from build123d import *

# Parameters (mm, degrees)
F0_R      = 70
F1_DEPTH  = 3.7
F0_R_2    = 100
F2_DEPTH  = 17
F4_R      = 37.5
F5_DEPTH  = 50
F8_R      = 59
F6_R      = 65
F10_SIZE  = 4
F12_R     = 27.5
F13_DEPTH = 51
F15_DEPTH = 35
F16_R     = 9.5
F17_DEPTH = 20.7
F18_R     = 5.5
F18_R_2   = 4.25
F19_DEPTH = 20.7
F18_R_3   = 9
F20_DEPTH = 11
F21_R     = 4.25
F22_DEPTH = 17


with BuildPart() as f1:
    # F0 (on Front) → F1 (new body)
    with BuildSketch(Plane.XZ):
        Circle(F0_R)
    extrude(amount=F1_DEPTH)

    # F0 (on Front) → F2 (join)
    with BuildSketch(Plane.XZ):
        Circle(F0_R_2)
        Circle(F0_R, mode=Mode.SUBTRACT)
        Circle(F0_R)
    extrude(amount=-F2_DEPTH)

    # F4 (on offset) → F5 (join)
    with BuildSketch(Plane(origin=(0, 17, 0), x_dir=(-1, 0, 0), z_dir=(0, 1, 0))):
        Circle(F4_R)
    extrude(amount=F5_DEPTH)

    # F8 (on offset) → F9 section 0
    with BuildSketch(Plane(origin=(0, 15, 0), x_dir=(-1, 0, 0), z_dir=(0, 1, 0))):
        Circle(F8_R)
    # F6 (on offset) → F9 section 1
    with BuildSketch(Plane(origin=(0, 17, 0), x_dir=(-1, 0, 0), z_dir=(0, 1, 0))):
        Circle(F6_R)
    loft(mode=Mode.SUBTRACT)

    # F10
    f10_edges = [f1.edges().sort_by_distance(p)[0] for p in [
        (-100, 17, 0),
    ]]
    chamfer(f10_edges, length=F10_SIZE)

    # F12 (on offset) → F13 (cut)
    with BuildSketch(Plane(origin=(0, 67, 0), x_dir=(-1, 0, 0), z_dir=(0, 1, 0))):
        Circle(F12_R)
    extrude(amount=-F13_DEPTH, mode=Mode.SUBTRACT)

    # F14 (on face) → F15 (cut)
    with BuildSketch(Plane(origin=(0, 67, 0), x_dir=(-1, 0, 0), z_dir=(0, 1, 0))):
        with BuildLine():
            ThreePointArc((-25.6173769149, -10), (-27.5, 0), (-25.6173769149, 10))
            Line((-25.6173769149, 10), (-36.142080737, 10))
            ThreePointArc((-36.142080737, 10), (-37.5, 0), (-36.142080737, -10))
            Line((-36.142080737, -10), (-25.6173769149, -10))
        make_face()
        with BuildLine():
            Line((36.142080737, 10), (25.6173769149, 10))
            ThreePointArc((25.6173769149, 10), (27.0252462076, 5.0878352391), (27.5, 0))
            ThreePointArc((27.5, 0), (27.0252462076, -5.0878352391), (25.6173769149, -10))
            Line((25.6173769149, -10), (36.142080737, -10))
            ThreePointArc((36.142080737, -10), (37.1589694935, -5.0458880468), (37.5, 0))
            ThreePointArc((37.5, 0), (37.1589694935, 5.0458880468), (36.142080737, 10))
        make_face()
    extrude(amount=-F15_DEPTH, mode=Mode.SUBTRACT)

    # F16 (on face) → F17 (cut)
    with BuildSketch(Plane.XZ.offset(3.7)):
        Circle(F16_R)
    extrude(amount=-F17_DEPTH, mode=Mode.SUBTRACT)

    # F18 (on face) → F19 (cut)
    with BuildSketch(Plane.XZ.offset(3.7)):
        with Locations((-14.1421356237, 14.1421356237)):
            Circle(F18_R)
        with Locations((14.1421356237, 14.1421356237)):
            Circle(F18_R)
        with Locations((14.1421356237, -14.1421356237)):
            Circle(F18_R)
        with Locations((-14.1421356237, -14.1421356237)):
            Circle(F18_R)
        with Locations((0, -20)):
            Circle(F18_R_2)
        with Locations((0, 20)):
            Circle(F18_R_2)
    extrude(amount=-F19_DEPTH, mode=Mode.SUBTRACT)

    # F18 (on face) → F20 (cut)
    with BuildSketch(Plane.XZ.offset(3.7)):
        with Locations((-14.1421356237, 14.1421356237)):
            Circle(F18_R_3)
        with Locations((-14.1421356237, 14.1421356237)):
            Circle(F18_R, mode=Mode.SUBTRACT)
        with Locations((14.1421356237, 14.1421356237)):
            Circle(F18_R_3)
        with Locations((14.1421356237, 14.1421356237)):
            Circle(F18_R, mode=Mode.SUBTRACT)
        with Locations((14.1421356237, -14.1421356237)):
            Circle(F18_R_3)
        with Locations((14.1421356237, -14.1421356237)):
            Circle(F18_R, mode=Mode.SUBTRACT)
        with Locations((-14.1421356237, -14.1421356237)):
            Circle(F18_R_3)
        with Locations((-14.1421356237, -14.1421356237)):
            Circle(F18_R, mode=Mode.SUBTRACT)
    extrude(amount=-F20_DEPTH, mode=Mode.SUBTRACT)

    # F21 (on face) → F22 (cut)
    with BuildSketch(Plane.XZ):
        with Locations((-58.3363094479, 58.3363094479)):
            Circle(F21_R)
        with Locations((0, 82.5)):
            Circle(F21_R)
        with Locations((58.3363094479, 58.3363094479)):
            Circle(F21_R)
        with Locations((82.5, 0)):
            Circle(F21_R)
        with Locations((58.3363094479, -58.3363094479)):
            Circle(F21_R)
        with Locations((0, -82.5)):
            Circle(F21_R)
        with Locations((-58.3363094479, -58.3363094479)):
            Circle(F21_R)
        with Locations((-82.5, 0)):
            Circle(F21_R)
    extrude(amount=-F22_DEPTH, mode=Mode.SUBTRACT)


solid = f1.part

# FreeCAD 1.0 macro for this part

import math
import FreeCAD as App
import Part
import Sketcher
Q = App.Units.Quantity


def edges_at(feature, points):
    """Names of the edges that pass closest to the given points."""
    edges = feature.Shape.Edges
    near = lambda p: min(range(len(edges)), key=lambda i: edges[i].distToShape(Part.Vertex(*p))[0])
    return sorted({f"Edge{near(p) + 1}" for p in points})

doc = App.newDocument("Part")
body = doc.addObject("PartDesign::Body", "Body")
body.AllowCompound = True

# Sketch on XZ plane
sketch1 = body.newObject("Sketcher::SketchObject", "Sketch")
sketch1.AttachmentSupport = (doc.getObject("XZ_Plane"), [""])
sketch1.MapMode = "FlatFace"
sketch1.addGeometry(Part.Circle(App.Vector(0, 0, 0), App.Vector(0, 0, 1), 70), False)
sketch1.addConstraint([
    Sketcher.Constraint("Coincident", 0, 3, -1, 1),
    Sketcher.Constraint("Diameter", 0, Q("140 mm")),
])
pad1 = body.newObject("PartDesign::Pad", "Pad")
pad1.Profile = sketch1
pad1.Length = 3.7

# Sketch on XZ plane
sketch2 = body.newObject("Sketcher::SketchObject", "Sketch001")
sketch2.AttachmentSupport = (doc.getObject("XZ_Plane"), [""])
sketch2.MapMode = "FlatFace"
sketch2.addGeometry(Part.Circle(App.Vector(0, 0, 0), App.Vector(0, 0, 1), 100), False)
sketch2.addConstraint([
    Sketcher.Constraint("Coincident", 0, 3, -1, 1),
    Sketcher.Constraint("Diameter", 0, Q("200 mm")),
])
pad2 = body.newObject("PartDesign::Pad", "Pad001")
pad2.Profile = sketch2
pad2.Length = 17
pad2.Reversed = True

# Sketch on XZ plane
sketch3 = body.newObject("Sketcher::SketchObject", "Sketch002")
sketch3.AttachmentSupport = (doc.getObject("XZ_Plane"), [""])
sketch3.MapMode = "FlatFace"
sketch3.AttachmentOffset = App.Placement(App.Vector(0, 0, -17), App.Rotation())
sketch3.addGeometry(Part.Circle(App.Vector(0, 0, 0), App.Vector(0, 0, 1), 37.5), False)
sketch3.addConstraint([
    Sketcher.Constraint("Coincident", 0, 3, -1, 1),
    Sketcher.Constraint("Diameter", 0, Q("75 mm")),
])
pad3 = body.newObject("PartDesign::Pad", "Pad002")
pad3.Profile = sketch3
pad3.Length = 50
pad3.Reversed = True

# Sketch on XZ plane
sketch4 = body.newObject("Sketcher::SketchObject", "Sketch003")
sketch4.AttachmentSupport = (doc.getObject("XZ_Plane"), [""])
sketch4.MapMode = "FlatFace"
sketch4.AttachmentOffset = App.Placement(App.Vector(0, 0, -15), App.Rotation())
sketch4.addGeometry(Part.Circle(App.Vector(0, 0, 0), App.Vector(0, 0, 1), 59), False)
sketch4.addConstraint([
    Sketcher.Constraint("Coincident", 0, 3, -1, 1),
    Sketcher.Constraint("Diameter", 0, Q("118 mm")),
])

# Sketch on XZ plane
sketch5 = body.newObject("Sketcher::SketchObject", "Sketch004")
sketch5.AttachmentSupport = (doc.getObject("XZ_Plane"), [""])
sketch5.MapMode = "FlatFace"
sketch5.AttachmentOffset = App.Placement(App.Vector(0, 0, -17), App.Rotation())
sketch5.addGeometry(Part.Circle(App.Vector(0, 0, 0), App.Vector(0, 0, 1), 65), False)
sketch5.addConstraint([
    Sketcher.Constraint("Coincident", 0, 3, -1, 1),
    Sketcher.Constraint("Diameter", 0, Q("130 mm")),
])

subtractiveloft = body.newObject("PartDesign::SubtractiveLoft", "SubtractiveLoft")
subtractiveloft.Profile = sketch4
subtractiveloft.Sections = [sketch5]
doc.recompute()

chamfer = body.newObject("PartDesign::Chamfer", "Chamfer")
chamfer.Base = (subtractiveloft, edges_at(subtractiveloft, [(-100, 17, 0)]))
chamfer.Size = 4

# Sketch on XZ plane
sketch6 = body.newObject("Sketcher::SketchObject", "Sketch005")
sketch6.AttachmentSupport = (doc.getObject("XZ_Plane"), [""])
sketch6.MapMode = "FlatFace"
sketch6.AttachmentOffset = App.Placement(App.Vector(0, 0, -67), App.Rotation())
sketch6.addGeometry(Part.Circle(App.Vector(0, 0, 0), App.Vector(0, 0, 1), 27.5), False)
sketch6.addConstraint([
    Sketcher.Constraint("Coincident", 0, 3, -1, 1),
    Sketcher.Constraint("Diameter", 0, Q("55 mm")),
])
pocket1 = body.newObject("PartDesign::Pocket", "Pocket")
pocket1.Profile = sketch6
pocket1.Length = 51
pocket1.Reversed = True

# Sketch on XZ plane
sketch7 = body.newObject("Sketcher::SketchObject", "Sketch006")
sketch7.AttachmentSupport = (doc.getObject("XZ_Plane"), [""])
sketch7.MapMode = "FlatFace"
sketch7.AttachmentOffset = App.Placement(App.Vector(0, 0, -67), App.Rotation())
sketch7.addGeometry([
    Part.ArcOfCircle(Part.Circle(App.Vector(0, 0, 0), App.Vector(0, 0, 1), 27.5), math.radians(-21.323686), math.radians(21.323686)),  # 0
    Part.LineSegment(App.Vector(25.617377, 10, 0), App.Vector(36.142081, 10, 0)),  # 1
    Part.ArcOfCircle(Part.Circle(App.Vector(0, 0, 0), App.Vector(0, 0, 1), 37.5), math.radians(-15.46601), math.radians(15.46601)),  # 2
    Part.LineSegment(App.Vector(36.142081, -10, 0), App.Vector(25.617377, -10, 0)),  # 3
    Part.LineSegment(App.Vector(-36.142081, 10, 0), App.Vector(-25.617377, 10, 0)),  # 4
    Part.ArcOfCircle(Part.Circle(App.Vector(0, 0, 0), App.Vector(0, 0, 1), 27.5), math.radians(158.676314), math.radians(180)),  # 5
    Part.ArcOfCircle(Part.Circle(App.Vector(0, 0, 0), App.Vector(0, 0, 1), 27.5), math.radians(180), math.radians(201.323686)),  # 6
    Part.LineSegment(App.Vector(-25.617377, -10, 0), App.Vector(-36.142081, -10, 0)),  # 7
    Part.ArcOfCircle(Part.Circle(App.Vector(0, 0, 0), App.Vector(0, 0, 1), 37.5), math.radians(180), math.radians(195.46601)),  # 8
    Part.ArcOfCircle(Part.Circle(App.Vector(0, 0, 0), App.Vector(0, 0, 1), 37.5), math.radians(164.53399), math.radians(180)),  # 9
], False)
sketch7.addConstraint([
    Sketcher.Constraint("Coincident", 0, 2, 1, 1),
    Sketcher.Constraint("Coincident", 1, 2, 2, 2),
    Sketcher.Constraint("Coincident", 2, 1, 3, 1),
    Sketcher.Constraint("Coincident", 3, 2, 0, 1),
    Sketcher.Constraint("Coincident", 4, 2, 5, 1),
    Sketcher.Constraint("Tangent", 5, 2, 6, 1),
    Sketcher.Constraint("Coincident", 6, 2, 7, 1),
    Sketcher.Constraint("Coincident", 7, 2, 8, 2),
    Sketcher.Constraint("Tangent", 8, 1, 9, 2),
    Sketcher.Constraint("Coincident", 9, 1, 4, 1),
    Sketcher.Constraint("Horizontal", 1),
    Sketcher.Constraint("Horizontal", 3),
    Sketcher.Constraint("Horizontal", 4),
    Sketcher.Constraint("Horizontal", 7),
    Sketcher.Constraint("Coincident", 0, 3, -1, 1),
    Sketcher.Constraint("Coincident", 2, 3, -1, 1),
    Sketcher.Constraint("Coincident", 5, 3, -1, 1),
    Sketcher.Constraint("Coincident", 8, 3, -1, 1),
    Sketcher.Constraint("Equal", 0, 5),
    Sketcher.Constraint("Equal", 5, 6),
    Sketcher.Constraint("Equal", 2, 8),
    Sketcher.Constraint("Equal", 8, 9),
    Sketcher.Constraint("PointOnObject", 5, 2, -1),
    Sketcher.Constraint("PointOnObject", 8, 1, -1),
    Sketcher.Constraint("Horizontal", 1, 2, 4, 2),
    Sketcher.Constraint("Horizontal", 3, 2, 6, 2),
    Sketcher.Constraint("Vertical", 1, 2, 2, 1),
    Sketcher.Constraint("Radius", 0, Q("27.5 mm")),
    Sketcher.Constraint("Radius", 2, Q("37.5 mm")),
    Sketcher.Constraint("DistanceY", -1, 1, 0, 2, Q("10 mm")),
])
pocket2 = body.newObject("PartDesign::Pocket", "Pocket001")
pocket2.Profile = sketch7
pocket2.Length = 35
pocket2.Reversed = True

# Sketch on XZ plane
sketch8 = body.newObject("Sketcher::SketchObject", "Sketch007")
sketch8.AttachmentSupport = (doc.getObject("XZ_Plane"), [""])
sketch8.MapMode = "FlatFace"
sketch8.AttachmentOffset = App.Placement(App.Vector(0, 0, 3.7), App.Rotation())
sketch8.addGeometry(Part.Circle(App.Vector(0, 0, 0), App.Vector(0, 0, 1), 9.5), False)
sketch8.addConstraint([
    Sketcher.Constraint("Coincident", 0, 3, -1, 1),
    Sketcher.Constraint("Diameter", 0, Q("19 mm")),
])
pocket3 = body.newObject("PartDesign::Pocket", "Pocket002")
pocket3.Profile = sketch8
pocket3.Length = 20.7

# Sketch on XZ plane
sketch9 = body.newObject("Sketcher::SketchObject", "Sketch008")
sketch9.AttachmentSupport = (doc.getObject("XZ_Plane"), [""])
sketch9.MapMode = "FlatFace"
sketch9.AttachmentOffset = App.Placement(App.Vector(0, 0, 3.7), App.Rotation())
sketch9.addGeometry([
    Part.Circle(App.Vector(-14.142136, 14.142136, 0), App.Vector(0, 0, 1), 5.5),  # 0
    Part.Circle(App.Vector(14.142136, 14.142136, 0), App.Vector(0, 0, 1), 5.5),  # 1
    Part.Circle(App.Vector(14.142136, -14.142136, 0), App.Vector(0, 0, 1), 5.5),  # 2
    Part.Circle(App.Vector(-14.142136, -14.142136, 0), App.Vector(0, 0, 1), 5.5),  # 3
    Part.Circle(App.Vector(0, -20, 0), App.Vector(0, 0, 1), 4.25),  # 4
    Part.Circle(App.Vector(0, 20, 0), App.Vector(0, 0, 1), 4.25),  # 5
], False)
sketch9.addConstraint([
    Sketcher.Constraint("Equal", 0, 1),
    Sketcher.Constraint("Equal", 1, 2),
    Sketcher.Constraint("Equal", 2, 3),
    Sketcher.Constraint("Equal", 4, 5),
    Sketcher.Constraint("Symmetric", 0, 3, 2, 3, -1, 1),
    Sketcher.Constraint("Symmetric", 1, 3, 3, 3, -1, 1),
    Sketcher.Constraint("Symmetric", 4, 3, 5, 3, -1, 1),
    Sketcher.Constraint("Symmetric", 0, 3, 1, 3, -2),
    Sketcher.Constraint("PointOnObject", 4, 3, -2),
    Sketcher.Constraint("Diameter", 0, Q("11 mm")),
    Sketcher.Constraint("Diameter", 4, Q("8.5 mm")),
    Sketcher.Constraint("DistanceY", 4, 3, -1, 1, Q("20 mm")),
    Sketcher.Constraint("DistanceX", 0, 3, 1, 3, Q("28.284271 mm")),
    Sketcher.Constraint("DistanceY", 2, 3, 1, 3, Q("28.284271 mm")),
])
pocket4 = body.newObject("PartDesign::Pocket", "Pocket003")
pocket4.Profile = sketch9
pocket4.Length = 20.7

# Sketch on XZ plane
sketch10 = body.newObject("Sketcher::SketchObject", "Sketch009")
sketch10.AttachmentSupport = (doc.getObject("XZ_Plane"), [""])
sketch10.MapMode = "FlatFace"
sketch10.AttachmentOffset = App.Placement(App.Vector(0, 0, 3.7), App.Rotation())
sketch10.addGeometry([
    Part.Circle(App.Vector(-14.142136, 14.142136, 0), App.Vector(0, 0, 1), 9),  # 0
    Part.Circle(App.Vector(-14.142136, 14.142136, 0), App.Vector(0, 0, 1), 5.5),  # 1
    Part.Circle(App.Vector(14.142136, 14.142136, 0), App.Vector(0, 0, 1), 9),  # 2
    Part.Circle(App.Vector(14.142136, 14.142136, 0), App.Vector(0, 0, 1), 5.5),  # 3
    Part.Circle(App.Vector(14.142136, -14.142136, 0), App.Vector(0, 0, 1), 9),  # 4
    Part.Circle(App.Vector(14.142136, -14.142136, 0), App.Vector(0, 0, 1), 5.5),  # 5
    Part.Circle(App.Vector(-14.142136, -14.142136, 0), App.Vector(0, 0, 1), 9),  # 6
    Part.Circle(App.Vector(-14.142136, -14.142136, 0), App.Vector(0, 0, 1), 5.5),  # 7
], False)
sketch10.addConstraint([
    Sketcher.Constraint("Coincident", 1, 3, 0, 3),
    Sketcher.Constraint("Coincident", 3, 3, 2, 3),
    Sketcher.Constraint("Coincident", 5, 3, 4, 3),
    Sketcher.Constraint("Coincident", 7, 3, 6, 3),
    Sketcher.Constraint("Equal", 0, 2),
    Sketcher.Constraint("Equal", 1, 3),
    Sketcher.Constraint("Equal", 2, 4),
    Sketcher.Constraint("Equal", 3, 5),
    Sketcher.Constraint("Equal", 4, 6),
    Sketcher.Constraint("Equal", 5, 7),
    Sketcher.Constraint("Symmetric", 0, 3, 4, 3, -1, 1),
    Sketcher.Constraint("Symmetric", 2, 3, 6, 3, -1, 1),
    Sketcher.Constraint("Symmetric", 0, 3, 2, 3, -2),
    Sketcher.Constraint("Diameter", 0, Q("18 mm")),
    Sketcher.Constraint("Diameter", 1, Q("11 mm")),
    Sketcher.Constraint("DistanceX", 0, 3, 2, 3, Q("28.284271 mm")),
    Sketcher.Constraint("DistanceY", 4, 3, 2, 3, Q("28.284271 mm")),
])
pocket5 = body.newObject("PartDesign::Pocket", "Pocket004")
pocket5.Profile = sketch10
pocket5.Length = 11

# Sketch on XZ plane
sketch11 = body.newObject("Sketcher::SketchObject", "Sketch010")
sketch11.AttachmentSupport = (doc.getObject("XZ_Plane"), [""])
sketch11.MapMode = "FlatFace"
sketch11.addGeometry([
    Part.Circle(App.Vector(-58.336309, 58.336309, 0), App.Vector(0, 0, 1), 4.25),  # 0
    Part.Circle(App.Vector(0, 82.5, 0), App.Vector(0, 0, 1), 4.25),  # 1
    Part.Circle(App.Vector(58.336309, 58.336309, 0), App.Vector(0, 0, 1), 4.25),  # 2
    Part.Circle(App.Vector(82.5, 0, 0), App.Vector(0, 0, 1), 4.25),  # 3
    Part.Circle(App.Vector(58.336309, -58.336309, 0), App.Vector(0, 0, 1), 4.25),  # 4
    Part.Circle(App.Vector(0, -82.5, 0), App.Vector(0, 0, 1), 4.25),  # 5
    Part.Circle(App.Vector(-58.336309, -58.336309, 0), App.Vector(0, 0, 1), 4.25),  # 6
    Part.Circle(App.Vector(-82.5, 0, 0), App.Vector(0, 0, 1), 4.25),  # 7
], False)
sketch11.addConstraint([
    Sketcher.Constraint("Equal", 0, 1),
    Sketcher.Constraint("Equal", 1, 2),
    Sketcher.Constraint("Equal", 2, 3),
    Sketcher.Constraint("Equal", 3, 4),
    Sketcher.Constraint("Equal", 4, 5),
    Sketcher.Constraint("Equal", 5, 6),
    Sketcher.Constraint("Equal", 6, 7),
    Sketcher.Constraint("Symmetric", 0, 3, 4, 3, -1, 1),
    Sketcher.Constraint("Symmetric", 1, 3, 5, 3, -1, 1),
    Sketcher.Constraint("Symmetric", 2, 3, 6, 3, -1, 1),
    Sketcher.Constraint("Symmetric", 3, 3, 7, 3, -1, 1),
    Sketcher.Constraint("Symmetric", 0, 3, 2, 3, -2),
    Sketcher.Constraint("PointOnObject", 1, 3, -2),
    Sketcher.Constraint("PointOnObject", 3, 3, -1),
    Sketcher.Constraint("Diameter", 0, Q("8.5 mm")),
    Sketcher.Constraint("DistanceY", 5, 3, 1, 3, Q("165 mm")),
    Sketcher.Constraint("DistanceX", -1, 1, 3, 3, Q("82.5 mm")),
    Sketcher.Constraint("DistanceX", 0, 3, -1, 1, Q("58.336309 mm")),
    Sketcher.Constraint("DistanceY", -1, 1, 0, 3, Q("58.336309 mm")),
])
pocket6 = body.newObject("PartDesign::Pocket", "Pocket005")
pocket6.Profile = sketch11
pocket6.Length = 17

doc.recompute()
